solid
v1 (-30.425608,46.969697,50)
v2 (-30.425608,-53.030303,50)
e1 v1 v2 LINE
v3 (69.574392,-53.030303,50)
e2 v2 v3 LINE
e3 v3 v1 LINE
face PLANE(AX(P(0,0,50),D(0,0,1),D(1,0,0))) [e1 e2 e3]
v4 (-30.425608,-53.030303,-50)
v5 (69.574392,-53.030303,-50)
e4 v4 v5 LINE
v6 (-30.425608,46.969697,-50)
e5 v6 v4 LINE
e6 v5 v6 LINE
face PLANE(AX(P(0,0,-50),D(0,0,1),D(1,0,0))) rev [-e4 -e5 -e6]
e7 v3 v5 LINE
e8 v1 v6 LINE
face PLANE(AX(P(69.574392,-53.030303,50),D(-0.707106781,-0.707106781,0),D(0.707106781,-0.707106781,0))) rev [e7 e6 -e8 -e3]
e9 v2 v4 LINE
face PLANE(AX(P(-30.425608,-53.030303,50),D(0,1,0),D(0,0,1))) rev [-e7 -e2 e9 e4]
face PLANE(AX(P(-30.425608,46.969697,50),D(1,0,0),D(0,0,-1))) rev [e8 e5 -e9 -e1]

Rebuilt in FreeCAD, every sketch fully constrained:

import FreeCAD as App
import Part
import Sketcher

V = App.Vector


def add_polygon(sketch, points):
    """Adds a closed chain of lines whose ends are joined by coincident constraints."""
    first, n = sketch.GeometryCount, len(points)
    for a, b in zip(points, points[1:] + points[:1]):
        sketch.addGeometry(Part.LineSegment(App.Vector(*a, 0), App.Vector(*b, 0)), False)
    for i in range(n):
        sketch.addConstraint(Sketcher.Constraint("Coincident", first + i, 2, first + (i + 1) % n, 1))

doc = App.newDocument("Part")
body = doc.addObject("PartDesign::Body", "Body")

# Sketch on XY plane
sketch1 = doc.addObject("Sketcher::SketchObject", "Sketch")
body.addObject(sketch1)
sketch1.AttachmentSupport = (doc.XY_Plane, [""])
sketch1.MapMode = "FlatFace"
add_polygon(sketch1, [(-30.425608, 46.969697), (-30.425608, -53.030303), (69.574392, -53.030303)])  # lines 0-2
sketch1.addConstraint([
    Sketcher.Constraint("Vertical", 0),
    Sketcher.Constraint("Horizontal", 1),
    Sketcher.Constraint("Equal", 1, 0),
    Sketcher.Constraint("DistanceX", 1, 1, 1, 2, 100.0),
    Sketcher.Constraint("DistanceX", 0, 2, -1, 1, 30.425608),
    Sketcher.Constraint("DistanceY", 0, 2, -1, 1, 53.030303),
])
pad1 = doc.addObject("PartDesign::Pad", "Pad")
body.addObject(pad1)
pad1.Profile = sketch1
pad1.Length = 100
pad1.Midplane = True

doc.recompute()
